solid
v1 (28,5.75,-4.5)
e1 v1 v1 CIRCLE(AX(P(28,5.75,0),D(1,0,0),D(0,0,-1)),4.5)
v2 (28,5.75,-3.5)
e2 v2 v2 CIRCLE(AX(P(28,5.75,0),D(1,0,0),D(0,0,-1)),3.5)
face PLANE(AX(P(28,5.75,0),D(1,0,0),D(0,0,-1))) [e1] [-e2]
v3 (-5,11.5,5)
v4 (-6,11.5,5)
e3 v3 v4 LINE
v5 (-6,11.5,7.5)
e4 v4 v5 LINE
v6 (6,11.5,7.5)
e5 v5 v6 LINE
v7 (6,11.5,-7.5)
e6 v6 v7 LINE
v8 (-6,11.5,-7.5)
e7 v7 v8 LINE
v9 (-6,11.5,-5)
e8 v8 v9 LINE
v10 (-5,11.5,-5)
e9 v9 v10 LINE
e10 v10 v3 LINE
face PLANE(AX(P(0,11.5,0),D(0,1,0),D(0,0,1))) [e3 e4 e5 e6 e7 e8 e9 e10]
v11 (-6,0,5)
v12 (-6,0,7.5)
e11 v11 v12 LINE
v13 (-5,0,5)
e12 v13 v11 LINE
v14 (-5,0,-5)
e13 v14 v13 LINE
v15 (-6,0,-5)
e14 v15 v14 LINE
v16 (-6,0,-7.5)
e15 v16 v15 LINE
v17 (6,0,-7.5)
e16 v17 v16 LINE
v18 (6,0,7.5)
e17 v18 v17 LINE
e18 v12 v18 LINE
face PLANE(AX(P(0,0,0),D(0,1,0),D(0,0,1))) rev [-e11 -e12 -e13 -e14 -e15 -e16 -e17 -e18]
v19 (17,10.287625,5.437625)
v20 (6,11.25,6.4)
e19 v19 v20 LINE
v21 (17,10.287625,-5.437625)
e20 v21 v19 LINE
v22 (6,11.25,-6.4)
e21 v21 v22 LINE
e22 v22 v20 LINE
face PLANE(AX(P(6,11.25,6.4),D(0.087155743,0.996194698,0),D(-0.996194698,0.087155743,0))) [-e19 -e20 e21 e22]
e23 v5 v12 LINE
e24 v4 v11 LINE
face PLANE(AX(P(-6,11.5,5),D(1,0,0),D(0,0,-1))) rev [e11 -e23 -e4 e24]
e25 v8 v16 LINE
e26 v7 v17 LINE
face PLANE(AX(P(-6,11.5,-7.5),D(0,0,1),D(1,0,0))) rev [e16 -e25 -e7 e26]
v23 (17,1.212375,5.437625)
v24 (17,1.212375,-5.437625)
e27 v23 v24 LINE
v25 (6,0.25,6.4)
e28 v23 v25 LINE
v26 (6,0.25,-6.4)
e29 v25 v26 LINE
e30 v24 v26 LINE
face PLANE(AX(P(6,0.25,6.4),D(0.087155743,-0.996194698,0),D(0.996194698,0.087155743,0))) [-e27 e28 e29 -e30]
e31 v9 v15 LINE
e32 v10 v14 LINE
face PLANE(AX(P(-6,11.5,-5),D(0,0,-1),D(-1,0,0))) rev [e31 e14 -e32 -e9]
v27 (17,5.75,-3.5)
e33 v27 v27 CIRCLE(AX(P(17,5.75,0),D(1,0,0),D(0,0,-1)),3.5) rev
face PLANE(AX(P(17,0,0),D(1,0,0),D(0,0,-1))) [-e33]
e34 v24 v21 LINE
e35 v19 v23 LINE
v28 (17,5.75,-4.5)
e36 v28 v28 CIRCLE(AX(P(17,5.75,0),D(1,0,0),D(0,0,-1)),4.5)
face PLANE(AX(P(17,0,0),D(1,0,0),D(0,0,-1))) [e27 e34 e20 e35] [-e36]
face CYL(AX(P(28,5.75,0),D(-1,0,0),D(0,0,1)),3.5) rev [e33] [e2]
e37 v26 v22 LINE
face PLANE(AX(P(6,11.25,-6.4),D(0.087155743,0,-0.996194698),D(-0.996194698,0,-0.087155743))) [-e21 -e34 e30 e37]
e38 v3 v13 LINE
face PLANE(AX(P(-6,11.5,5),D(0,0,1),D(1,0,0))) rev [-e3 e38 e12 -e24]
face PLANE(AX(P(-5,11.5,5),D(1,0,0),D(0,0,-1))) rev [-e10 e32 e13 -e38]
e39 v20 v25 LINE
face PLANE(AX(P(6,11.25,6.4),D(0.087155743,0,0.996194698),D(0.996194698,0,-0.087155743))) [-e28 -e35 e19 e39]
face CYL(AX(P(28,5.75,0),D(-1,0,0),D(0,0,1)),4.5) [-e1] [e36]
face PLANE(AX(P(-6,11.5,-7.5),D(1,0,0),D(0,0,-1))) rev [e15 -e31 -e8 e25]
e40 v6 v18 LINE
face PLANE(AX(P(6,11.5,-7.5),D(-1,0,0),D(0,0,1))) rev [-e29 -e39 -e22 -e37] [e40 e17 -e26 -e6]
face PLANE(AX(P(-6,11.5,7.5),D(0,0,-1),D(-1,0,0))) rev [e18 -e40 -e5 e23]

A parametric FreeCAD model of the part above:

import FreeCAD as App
import Part
import Sketcher

V = App.Vector

doc = App.newDocument("Part")
params = doc.addObject("Spreadsheet::Sheet", "Params")
for row, (alias, value) in enumerate([
    ("sketch1_width", "12 mm"),
    ("sketch1_width2", "1 mm"),
    ("sketch1_height", "15 mm"),
    ("sketch1_height2", "10 mm"),
    ("pad1_length", "11.5 mm"),
    ("sketch2_width", "11 mm"),
    ("sketch2_height", "12.8 mm"),
    ("pad2_length", "11 mm"),
    ("pad2_taper", "-5 deg"),
    ("sketch3_diameter", "9 mm"),
    ("sketch3_diameter2", "7 mm"),
    ("pad3_length", "11 mm"),
], start=1):
    params.set(f"A{row}", alias)
    params.set(f"B{row}", "=" + value)
    params.setAlias(f"B{row}", alias)

body = doc.addObject("PartDesign::Body", "Body")

sketch1 = body.newObject("Sketcher::SketchObject", "Sketch")
sketch1.AttachmentSupport = (doc.getObject("XZ_Plane"), [""])
sketch1.MapMode = "FlatFace"
sketch1.addGeometry(Part.LineSegment(V(-6, 5, 0), V(-6, 7.5, 0)), False)
sketch1.addGeometry(Part.LineSegment(V(-6, 7.5, 0), V(6, 7.5, 0)), False)
sketch1.addGeometry(Part.LineSegment(V(6, 7.5, 0), V(6, -7.5, 0)), False)
sketch1.addGeometry(Part.LineSegment(V(6, -7.5, 0), V(-6, -7.5, 0)), False)
sketch1.addGeometry(Part.LineSegment(V(-6, -7.5, 0), V(-6, -5, 0)), False)
sketch1.addGeometry(Part.LineSegment(V(-6, -5, 0), V(-5, -5, 0)), False)
sketch1.addGeometry(Part.LineSegment(V(-5, -5, 0), V(-5, 5, 0)), False)
sketch1.addGeometry(Part.LineSegment(V(-5, 5, 0), V(-6, 5, 0)), False)
sketch1.addConstraint(Sketcher.Constraint("Coincident", 0, 2, 1, 1))
sketch1.addConstraint(Sketcher.Constraint("Coincident", 1, 2, 2, 1))
sketch1.addConstraint(Sketcher.Constraint("Coincident", 2, 2, 3, 1))
sketch1.addConstraint(Sketcher.Constraint("Coincident", 3, 2, 4, 1))
sketch1.addConstraint(Sketcher.Constraint("Coincident", 4, 2, 5, 1))
sketch1.addConstraint(Sketcher.Constraint("Coincident", 5, 2, 6, 1))
sketch1.addConstraint(Sketcher.Constraint("Coincident", 6, 2, 7, 1))
sketch1.addConstraint(Sketcher.Constraint("Coincident", 7, 2, 0, 1))
sketch1.addConstraint(Sketcher.Constraint("Vertical", 0))
sketch1.addConstraint(Sketcher.Constraint("Horizontal", 1))
sketch1.addConstraint(Sketcher.Constraint("Vertical", 2))
sketch1.addConstraint(Sketcher.Constraint("Horizontal", 3))
sketch1.addConstraint(Sketcher.Constraint("Vertical", 4))
sketch1.addConstraint(Sketcher.Constraint("Horizontal", 5))
sketch1.addConstraint(Sketcher.Constraint("Vertical", 6))
sketch1.addConstraint(Sketcher.Constraint("Horizontal", 7))
sketch1.addConstraint(Sketcher.Constraint("Symmetric", 0, 2, 2, 2, -1, 1))
sketch1.addConstraint(Sketcher.Constraint("Symmetric", 4, 2, 7, 2, -1))
sketch1.addConstraint(Sketcher.Constraint("DistanceX", 1, 1, 1, 2, 12.0))
sketch1.addConstraint(Sketcher.Constraint("DistanceX", 5, 1, 5, 2, 1.0))
sketch1.addConstraint(Sketcher.Constraint("DistanceY", 2, 2, 2, 1, 15.0))
sketch1.addConstraint(Sketcher.Constraint("DistanceY", 6, 1, 6, 2, 10.0))
sketch1.setExpression("Constraints[18]", "Params.sketch1_width")
sketch1.setExpression("Constraints[19]", "Params.sketch1_width2")
sketch1.setExpression("Constraints[20]", "Params.sketch1_height")
sketch1.setExpression("Constraints[21]", "Params.sketch1_height2")
pad1 = body.newObject("PartDesign::Pad", "Pad")
pad1.Profile = sketch1
pad1.setExpression("Length", "Params.pad1_length")
pad1.Reversed = True

sketch2 = body.newObject("Sketcher::SketchObject", "Sketch001")
sketch2.AttachmentSupport = (doc.getObject("YZ_Plane"), [""])
sketch2.MapMode = "FlatFace"
sketch2.AttachmentOffset = App.Placement(V(0, 0, 6), App.Rotation())
sketch2.addGeometry(Part.LineSegment(V(11, 6, 0), V(0, 6, 0)), False)
sketch2.addGeometry(Part.LineSegment(V(0, 6, 0), V(0, -6, 0)), False)
sketch2.addGeometry(Part.LineSegment(V(0, -6, 0), V(11, -6, 0)), False)
sketch2.addGeometry(Part.LineSegment(V(11, -6, 0), V(11, 6, 0)), False)
sketch2.addConstraint(Sketcher.Constraint("Coincident", 0, 2, 1, 1))
sketch2.addConstraint(Sketcher.Constraint("Coincident", 1, 2, 2, 1))
sketch2.addConstraint(Sketcher.Constraint("Coincident", 2, 2, 3, 1))
sketch2.addConstraint(Sketcher.Constraint("Coincident", 3, 2, 0, 1))
sketch2.addConstraint(Sketcher.Constraint("Horizontal", 0))
sketch2.addConstraint(Sketcher.Constraint("Vertical", 1))
sketch2.addConstraint(Sketcher.Constraint("Horizontal", 2))
sketch2.addConstraint(Sketcher.Constraint("Vertical", 3))
sketch2.addConstraint(Sketcher.Constraint("DistanceX", 0, 2, 0, 1, 11.0))
sketch2.addConstraint(Sketcher.Constraint("DistanceY", 1, 2, 1, 1, 12.8))
sketch2.addConstraint(Sketcher.Constraint("DistanceY", -1, 1, 0, 2, 6.4))
sketch2.addConstraint(Sketcher.Constraint("DistanceX", -1, 1, 0, 2, 0.25))
sketch2.setExpression("Constraints[8]", "Params.sketch2_width")
sketch2.setExpression("Constraints[9]", "Params.sketch2_height")
pad2 = body.newObject("PartDesign::Pad", "Pad001")
pad2.Profile = sketch2
pad2.setExpression("Length", "Params.pad2_length")
pad2.setExpression("TaperAngle", "Params.pad2_taper")

sketch3 = body.newObject("Sketcher::SketchObject", "Sketch002")
sketch3.AttachmentSupport = (doc.getObject("YZ_Plane"), [""])
sketch3.MapMode = "FlatFace"
sketch3.AttachmentOffset = App.Placement(V(0, 0, 17), App.Rotation())
sketch3.addGeometry(Part.Circle(V(5.8, 0, 0), V(0, 0, 1), 4.5), False)
sketch3.addGeometry(Part.Circle(V(5.8, 0, 0), V(0, 0, 1), 3.5), False)
sketch3.addConstraint(Sketcher.Constraint("Coincident", 1, 3, 0, 3))
sketch3.addConstraint(Sketcher.Constraint("PointOnObject", 0, 3, -1))
sketch3.addConstraint(Sketcher.Constraint("Diameter", 0, 9.0))
sketch3.addConstraint(Sketcher.Constraint("Diameter", 1, 7.0))
sketch3.addConstraint(Sketcher.Constraint("DistanceX", -1, 1, 0, 3, 5.75))
sketch3.setExpression("Constraints[2]", "Params.sketch3_diameter")
sketch3.setExpression("Constraints[3]", "Params.sketch3_diameter2")
pad3 = body.newObject("PartDesign::Pad", "Pad002")
pad3.Profile = sketch3
pad3.setExpression("Length", "Params.pad3_length")

doc.recompute()
